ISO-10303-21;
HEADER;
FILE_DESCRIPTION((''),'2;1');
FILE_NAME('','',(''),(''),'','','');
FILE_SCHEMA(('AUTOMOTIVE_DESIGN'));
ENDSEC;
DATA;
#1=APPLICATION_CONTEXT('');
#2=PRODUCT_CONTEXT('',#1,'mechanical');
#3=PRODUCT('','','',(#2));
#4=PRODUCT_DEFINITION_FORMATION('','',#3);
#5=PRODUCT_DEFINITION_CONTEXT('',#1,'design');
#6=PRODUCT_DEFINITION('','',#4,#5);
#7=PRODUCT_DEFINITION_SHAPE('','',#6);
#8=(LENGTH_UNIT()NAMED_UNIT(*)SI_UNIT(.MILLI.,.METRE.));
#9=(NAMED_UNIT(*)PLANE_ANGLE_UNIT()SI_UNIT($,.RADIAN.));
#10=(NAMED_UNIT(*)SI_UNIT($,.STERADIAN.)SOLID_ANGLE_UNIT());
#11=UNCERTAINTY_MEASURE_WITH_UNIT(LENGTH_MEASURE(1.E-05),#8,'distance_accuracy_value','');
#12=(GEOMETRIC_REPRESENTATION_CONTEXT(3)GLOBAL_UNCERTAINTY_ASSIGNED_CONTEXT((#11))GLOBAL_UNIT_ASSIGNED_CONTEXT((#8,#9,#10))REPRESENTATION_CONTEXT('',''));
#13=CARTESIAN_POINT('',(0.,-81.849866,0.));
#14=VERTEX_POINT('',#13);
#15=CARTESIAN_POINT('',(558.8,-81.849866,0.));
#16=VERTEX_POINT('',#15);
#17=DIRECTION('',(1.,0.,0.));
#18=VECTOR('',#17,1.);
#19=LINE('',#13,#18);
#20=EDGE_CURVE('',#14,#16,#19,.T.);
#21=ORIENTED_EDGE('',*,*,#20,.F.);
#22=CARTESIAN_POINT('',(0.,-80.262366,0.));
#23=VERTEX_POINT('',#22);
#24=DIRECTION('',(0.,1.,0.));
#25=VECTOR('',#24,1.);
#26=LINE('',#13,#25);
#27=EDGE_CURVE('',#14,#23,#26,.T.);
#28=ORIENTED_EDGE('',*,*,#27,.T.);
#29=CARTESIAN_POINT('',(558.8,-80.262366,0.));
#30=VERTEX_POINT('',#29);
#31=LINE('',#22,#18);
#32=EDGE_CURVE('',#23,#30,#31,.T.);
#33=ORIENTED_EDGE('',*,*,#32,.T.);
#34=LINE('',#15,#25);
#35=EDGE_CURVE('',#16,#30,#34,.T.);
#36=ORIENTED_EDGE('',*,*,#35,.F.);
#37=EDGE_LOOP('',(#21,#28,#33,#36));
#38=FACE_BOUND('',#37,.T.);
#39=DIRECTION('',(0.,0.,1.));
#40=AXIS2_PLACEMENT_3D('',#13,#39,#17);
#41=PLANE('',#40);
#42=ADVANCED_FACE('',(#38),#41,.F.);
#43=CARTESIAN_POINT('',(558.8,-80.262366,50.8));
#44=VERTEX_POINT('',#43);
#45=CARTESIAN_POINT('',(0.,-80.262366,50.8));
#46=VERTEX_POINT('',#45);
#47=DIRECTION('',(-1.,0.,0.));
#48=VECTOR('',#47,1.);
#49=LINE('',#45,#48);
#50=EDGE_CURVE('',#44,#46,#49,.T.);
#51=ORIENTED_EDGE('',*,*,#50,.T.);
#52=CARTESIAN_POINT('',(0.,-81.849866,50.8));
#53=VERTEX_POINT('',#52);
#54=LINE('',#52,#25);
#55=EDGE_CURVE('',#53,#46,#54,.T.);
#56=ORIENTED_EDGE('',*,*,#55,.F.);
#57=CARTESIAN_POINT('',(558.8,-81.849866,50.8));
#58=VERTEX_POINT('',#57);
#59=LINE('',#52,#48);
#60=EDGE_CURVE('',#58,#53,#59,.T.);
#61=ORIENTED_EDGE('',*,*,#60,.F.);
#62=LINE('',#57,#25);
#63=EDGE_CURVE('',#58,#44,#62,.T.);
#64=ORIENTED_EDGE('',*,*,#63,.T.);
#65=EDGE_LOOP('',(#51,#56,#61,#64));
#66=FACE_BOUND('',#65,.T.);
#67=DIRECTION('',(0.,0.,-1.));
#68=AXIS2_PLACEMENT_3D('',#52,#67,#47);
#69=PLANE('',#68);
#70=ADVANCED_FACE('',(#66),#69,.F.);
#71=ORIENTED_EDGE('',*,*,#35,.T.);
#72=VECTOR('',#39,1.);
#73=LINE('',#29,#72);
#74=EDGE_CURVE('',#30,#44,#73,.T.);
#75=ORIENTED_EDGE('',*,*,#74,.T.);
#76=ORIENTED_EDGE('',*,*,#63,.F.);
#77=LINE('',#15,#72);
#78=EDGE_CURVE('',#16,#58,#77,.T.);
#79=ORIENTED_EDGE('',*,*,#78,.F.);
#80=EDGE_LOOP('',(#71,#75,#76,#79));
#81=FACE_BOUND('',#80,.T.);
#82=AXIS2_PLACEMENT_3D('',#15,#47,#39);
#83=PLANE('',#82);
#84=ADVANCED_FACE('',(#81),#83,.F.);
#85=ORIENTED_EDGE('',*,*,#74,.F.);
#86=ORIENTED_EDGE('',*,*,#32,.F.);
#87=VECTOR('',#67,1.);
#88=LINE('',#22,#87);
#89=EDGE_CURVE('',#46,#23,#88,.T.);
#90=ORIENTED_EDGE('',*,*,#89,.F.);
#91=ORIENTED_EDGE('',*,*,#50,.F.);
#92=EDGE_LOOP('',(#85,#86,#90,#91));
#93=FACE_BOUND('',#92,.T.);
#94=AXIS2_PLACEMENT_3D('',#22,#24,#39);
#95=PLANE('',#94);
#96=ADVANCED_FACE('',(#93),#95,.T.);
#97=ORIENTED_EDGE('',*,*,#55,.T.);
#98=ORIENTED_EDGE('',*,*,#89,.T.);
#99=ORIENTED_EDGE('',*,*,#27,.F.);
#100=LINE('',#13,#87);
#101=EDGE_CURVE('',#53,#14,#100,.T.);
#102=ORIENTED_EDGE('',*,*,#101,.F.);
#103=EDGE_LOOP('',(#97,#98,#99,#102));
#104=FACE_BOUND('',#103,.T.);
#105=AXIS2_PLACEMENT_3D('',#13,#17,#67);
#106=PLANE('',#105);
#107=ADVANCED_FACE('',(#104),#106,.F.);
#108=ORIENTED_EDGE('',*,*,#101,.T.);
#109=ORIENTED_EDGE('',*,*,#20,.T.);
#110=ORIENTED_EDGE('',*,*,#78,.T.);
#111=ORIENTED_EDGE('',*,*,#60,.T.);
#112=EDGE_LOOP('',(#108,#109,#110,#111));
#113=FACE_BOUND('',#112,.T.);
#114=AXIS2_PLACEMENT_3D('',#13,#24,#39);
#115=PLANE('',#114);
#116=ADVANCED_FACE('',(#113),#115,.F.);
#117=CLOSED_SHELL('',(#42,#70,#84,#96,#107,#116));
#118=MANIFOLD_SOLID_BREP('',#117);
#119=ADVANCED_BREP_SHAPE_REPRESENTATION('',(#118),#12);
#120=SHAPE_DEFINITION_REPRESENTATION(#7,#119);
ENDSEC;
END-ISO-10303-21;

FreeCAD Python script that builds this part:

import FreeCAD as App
import Part
import Sketcher
from FreeCAD import Vector
Q = App.Units.Quantity

doc = App.newDocument("Part")
body = doc.addObject("PartDesign::Body", "Body")

# Sketch on XZ plane
sketch1 = body.newObject("Sketcher::SketchObject", "Sketch")
sketch1.AttachmentSupport = (doc.getObject("XZ_Plane"), [""])
sketch1.MapMode = "FlatFace"
sketch1.AttachmentOffset = App.Placement(Vector(0, 0, 80.262366), App.Rotation())
sketch1.addGeometry([
    Part.LineSegment(Vector(0, 51, 0), Vector(0, 0, 0)),
    Part.LineSegment(Vector(0, 0, 0), Vector(559, 0, 0)),
    Part.LineSegment(Vector(559, 0, 0), Vector(559, 51, 0)),
    Part.LineSegment(Vector(559, 51, 0), Vector(0, 51, 0)),
], False)
sketch1.addConstraint([
    Sketcher.Constraint("Coincident", 0, 2, 1, 1),
    Sketcher.Constraint("Coincident", 1, 2, 2, 1),
    Sketcher.Constraint("Coincident", 2, 2, 3, 1),
    Sketcher.Constraint("Coincident", 3, 2, 0, 1),
    Sketcher.Constraint("Vertical", 0),
    Sketcher.Constraint("Horizontal", 1),
    Sketcher.Constraint("Vertical", 2),
    Sketcher.Constraint("Horizontal", 3),
    Sketcher.Constraint("Coincident", 0, 2, -1, 1),
    Sketcher.Constraint("DistanceX", 1, 1, 1, 2, Q("22 in")),
    Sketcher.Constraint("DistanceY", 0, 2, 0, 1, Q("2 in")),
])
pad1 = body.newObject("PartDesign::Pad", "Pad")
pad1.Profile = sketch1
pad1.Length = Q("0.0625 in")

doc.recompute()
